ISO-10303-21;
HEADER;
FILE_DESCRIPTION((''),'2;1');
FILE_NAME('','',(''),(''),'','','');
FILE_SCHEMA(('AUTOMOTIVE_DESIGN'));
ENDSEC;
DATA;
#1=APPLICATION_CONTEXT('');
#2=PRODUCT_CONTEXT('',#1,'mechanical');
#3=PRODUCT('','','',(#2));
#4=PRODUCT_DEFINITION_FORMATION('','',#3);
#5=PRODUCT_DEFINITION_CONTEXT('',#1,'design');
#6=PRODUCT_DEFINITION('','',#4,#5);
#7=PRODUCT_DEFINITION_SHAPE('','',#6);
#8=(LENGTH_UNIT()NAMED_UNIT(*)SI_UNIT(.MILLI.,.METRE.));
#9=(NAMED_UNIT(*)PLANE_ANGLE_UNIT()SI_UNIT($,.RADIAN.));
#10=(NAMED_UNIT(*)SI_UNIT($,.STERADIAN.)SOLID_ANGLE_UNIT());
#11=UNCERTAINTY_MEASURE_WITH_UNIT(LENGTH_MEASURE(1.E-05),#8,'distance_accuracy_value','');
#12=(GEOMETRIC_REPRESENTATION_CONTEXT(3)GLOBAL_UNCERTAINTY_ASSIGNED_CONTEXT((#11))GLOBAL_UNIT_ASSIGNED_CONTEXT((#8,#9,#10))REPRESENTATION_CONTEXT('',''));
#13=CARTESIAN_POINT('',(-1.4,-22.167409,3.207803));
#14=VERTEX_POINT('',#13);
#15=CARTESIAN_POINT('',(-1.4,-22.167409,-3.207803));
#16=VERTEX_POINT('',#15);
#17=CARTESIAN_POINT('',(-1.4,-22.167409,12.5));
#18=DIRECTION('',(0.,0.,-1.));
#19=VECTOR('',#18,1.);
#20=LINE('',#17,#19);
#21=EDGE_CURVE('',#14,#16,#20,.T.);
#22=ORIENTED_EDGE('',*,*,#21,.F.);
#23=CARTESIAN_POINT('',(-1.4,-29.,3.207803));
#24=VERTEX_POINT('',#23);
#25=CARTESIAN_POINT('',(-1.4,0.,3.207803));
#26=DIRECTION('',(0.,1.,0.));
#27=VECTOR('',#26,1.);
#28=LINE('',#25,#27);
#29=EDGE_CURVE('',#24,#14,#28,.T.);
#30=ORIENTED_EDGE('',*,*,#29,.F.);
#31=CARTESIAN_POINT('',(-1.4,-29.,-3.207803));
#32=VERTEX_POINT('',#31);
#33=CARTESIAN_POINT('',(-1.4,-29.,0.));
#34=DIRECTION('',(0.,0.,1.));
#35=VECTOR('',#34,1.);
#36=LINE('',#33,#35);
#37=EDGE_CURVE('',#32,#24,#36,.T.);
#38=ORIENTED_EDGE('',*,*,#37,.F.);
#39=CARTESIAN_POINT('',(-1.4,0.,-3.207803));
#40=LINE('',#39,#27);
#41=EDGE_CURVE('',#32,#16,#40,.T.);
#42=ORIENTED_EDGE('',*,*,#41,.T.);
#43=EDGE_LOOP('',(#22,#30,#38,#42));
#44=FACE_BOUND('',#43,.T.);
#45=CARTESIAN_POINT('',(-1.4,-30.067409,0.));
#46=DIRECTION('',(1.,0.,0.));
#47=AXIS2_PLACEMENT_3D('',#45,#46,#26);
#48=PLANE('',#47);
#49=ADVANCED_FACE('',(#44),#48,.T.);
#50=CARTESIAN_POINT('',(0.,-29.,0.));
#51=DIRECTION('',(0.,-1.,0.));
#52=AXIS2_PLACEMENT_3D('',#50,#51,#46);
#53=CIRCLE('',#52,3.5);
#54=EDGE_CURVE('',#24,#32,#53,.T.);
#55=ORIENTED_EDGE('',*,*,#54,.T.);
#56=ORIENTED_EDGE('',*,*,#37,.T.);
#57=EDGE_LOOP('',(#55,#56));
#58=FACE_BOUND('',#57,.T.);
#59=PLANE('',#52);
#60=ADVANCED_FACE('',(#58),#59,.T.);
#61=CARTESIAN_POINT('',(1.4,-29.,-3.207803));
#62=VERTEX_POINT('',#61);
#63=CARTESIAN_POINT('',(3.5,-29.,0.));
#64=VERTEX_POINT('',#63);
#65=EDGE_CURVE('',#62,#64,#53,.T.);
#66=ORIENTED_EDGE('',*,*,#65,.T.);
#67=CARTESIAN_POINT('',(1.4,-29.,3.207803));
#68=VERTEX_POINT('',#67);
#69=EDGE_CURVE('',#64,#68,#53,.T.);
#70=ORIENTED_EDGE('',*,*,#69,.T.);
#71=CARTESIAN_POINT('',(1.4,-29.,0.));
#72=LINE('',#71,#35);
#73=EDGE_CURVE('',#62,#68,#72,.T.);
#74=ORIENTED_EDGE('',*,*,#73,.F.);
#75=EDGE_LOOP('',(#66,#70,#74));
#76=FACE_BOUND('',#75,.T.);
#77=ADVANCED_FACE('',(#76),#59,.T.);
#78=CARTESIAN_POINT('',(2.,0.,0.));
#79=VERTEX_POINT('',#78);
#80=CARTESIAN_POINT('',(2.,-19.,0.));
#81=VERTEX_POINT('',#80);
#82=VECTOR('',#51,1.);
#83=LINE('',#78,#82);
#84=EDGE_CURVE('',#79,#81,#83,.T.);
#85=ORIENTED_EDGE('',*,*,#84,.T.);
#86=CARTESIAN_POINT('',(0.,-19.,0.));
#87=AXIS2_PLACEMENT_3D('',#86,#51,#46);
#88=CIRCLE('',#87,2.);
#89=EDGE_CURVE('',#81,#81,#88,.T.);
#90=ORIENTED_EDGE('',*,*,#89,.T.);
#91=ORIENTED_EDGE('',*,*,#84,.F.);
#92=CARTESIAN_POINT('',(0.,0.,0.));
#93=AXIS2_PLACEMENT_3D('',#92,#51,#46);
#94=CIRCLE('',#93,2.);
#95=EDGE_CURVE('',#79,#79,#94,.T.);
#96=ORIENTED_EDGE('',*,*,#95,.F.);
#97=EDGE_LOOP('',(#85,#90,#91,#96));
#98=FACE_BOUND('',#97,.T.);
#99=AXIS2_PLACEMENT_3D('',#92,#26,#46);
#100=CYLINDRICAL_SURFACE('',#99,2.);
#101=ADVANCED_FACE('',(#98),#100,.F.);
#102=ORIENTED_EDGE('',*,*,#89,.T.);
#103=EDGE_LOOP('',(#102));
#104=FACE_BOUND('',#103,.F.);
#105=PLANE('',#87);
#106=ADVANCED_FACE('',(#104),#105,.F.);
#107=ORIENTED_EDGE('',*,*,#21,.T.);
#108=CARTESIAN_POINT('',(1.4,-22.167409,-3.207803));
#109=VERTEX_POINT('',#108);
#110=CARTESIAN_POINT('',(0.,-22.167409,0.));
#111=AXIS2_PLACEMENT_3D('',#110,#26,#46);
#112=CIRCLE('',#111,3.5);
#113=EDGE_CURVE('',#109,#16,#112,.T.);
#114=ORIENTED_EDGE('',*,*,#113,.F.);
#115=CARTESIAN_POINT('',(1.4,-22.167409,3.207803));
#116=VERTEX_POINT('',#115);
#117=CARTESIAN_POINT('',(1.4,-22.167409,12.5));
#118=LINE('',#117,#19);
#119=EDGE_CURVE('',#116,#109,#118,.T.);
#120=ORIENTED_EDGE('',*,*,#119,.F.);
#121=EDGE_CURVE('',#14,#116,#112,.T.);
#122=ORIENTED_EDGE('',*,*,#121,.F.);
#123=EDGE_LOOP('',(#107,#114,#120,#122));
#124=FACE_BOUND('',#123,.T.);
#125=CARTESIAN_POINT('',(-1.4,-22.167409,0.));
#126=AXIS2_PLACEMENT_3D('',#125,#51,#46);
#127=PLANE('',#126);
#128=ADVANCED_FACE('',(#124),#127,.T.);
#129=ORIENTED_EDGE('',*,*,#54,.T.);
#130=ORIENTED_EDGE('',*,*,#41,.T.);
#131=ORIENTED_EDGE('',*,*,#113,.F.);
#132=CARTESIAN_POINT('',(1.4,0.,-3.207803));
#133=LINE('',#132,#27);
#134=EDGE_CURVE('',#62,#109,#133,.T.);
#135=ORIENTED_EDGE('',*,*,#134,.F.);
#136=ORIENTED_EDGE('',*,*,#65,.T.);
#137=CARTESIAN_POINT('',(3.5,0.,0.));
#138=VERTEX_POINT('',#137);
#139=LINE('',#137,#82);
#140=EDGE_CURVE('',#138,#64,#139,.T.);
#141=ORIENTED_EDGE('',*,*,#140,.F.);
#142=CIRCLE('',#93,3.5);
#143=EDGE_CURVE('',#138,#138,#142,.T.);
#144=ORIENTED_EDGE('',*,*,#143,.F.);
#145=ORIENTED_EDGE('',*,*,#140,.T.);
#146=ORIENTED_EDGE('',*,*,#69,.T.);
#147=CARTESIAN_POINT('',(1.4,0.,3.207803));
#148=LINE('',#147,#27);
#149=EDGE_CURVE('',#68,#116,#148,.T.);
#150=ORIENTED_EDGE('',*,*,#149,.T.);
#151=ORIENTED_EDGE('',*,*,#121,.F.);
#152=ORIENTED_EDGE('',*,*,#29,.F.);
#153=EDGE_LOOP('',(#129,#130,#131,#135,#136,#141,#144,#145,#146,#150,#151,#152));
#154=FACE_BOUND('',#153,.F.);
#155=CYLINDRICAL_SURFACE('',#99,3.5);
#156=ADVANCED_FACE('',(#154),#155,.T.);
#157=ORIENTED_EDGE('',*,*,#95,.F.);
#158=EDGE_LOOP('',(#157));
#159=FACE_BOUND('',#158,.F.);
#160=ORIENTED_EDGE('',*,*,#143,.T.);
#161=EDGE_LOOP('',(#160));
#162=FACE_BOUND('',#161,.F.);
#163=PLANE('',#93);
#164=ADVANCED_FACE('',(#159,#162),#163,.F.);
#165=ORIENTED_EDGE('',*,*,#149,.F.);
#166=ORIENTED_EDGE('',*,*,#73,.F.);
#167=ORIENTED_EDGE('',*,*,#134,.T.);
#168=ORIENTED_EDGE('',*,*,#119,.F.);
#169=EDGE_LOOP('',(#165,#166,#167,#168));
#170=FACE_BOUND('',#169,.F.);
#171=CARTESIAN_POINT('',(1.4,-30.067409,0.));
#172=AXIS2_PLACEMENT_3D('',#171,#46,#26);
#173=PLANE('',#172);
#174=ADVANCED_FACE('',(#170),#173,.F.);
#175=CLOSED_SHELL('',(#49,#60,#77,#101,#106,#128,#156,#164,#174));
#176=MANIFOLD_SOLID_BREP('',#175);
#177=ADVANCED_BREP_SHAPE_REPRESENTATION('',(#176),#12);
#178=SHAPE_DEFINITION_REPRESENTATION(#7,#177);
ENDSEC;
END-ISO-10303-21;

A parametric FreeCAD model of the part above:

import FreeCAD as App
import Part
import Sketcher

V = App.Vector

doc = App.newDocument("Part")
body = doc.addObject("PartDesign::Body", "Body")

# Sketch on XZ plane
sketch1 = body.newObject("Sketcher::SketchObject", "Sketch")
sketch1.AttachmentSupport = (doc.getObject("XZ_Plane"), [""])
sketch1.MapMode = "FlatFace"
sketch1.addGeometry(Part.Circle(V(0, 0, 0), V(0, 0, 1), 3.5), False)
sketch1.addConstraint([
    Sketcher.Constraint("Coincident", 0, 3, -1, 1),
    Sketcher.Constraint("Diameter", 0, 7.0),
])
pad1 = body.newObject("PartDesign::Pad", "Pad")
pad1.Profile = sketch1
pad1.Length = 29

# Sketch on XZ plane
sketch2 = body.newObject("Sketcher::SketchObject", "Sketch001")
sketch2.AttachmentSupport = (doc.getObject("XZ_Plane"), [""])
sketch2.MapMode = "FlatFace"
sketch2.addGeometry(Part.Circle(V(0, 0, 0), V(0, 0, 1), 2), False)
sketch2.addConstraint([
    Sketcher.Constraint("Coincident", 0, 3, -1, 1),
    Sketcher.Constraint("Diameter", 0, 4.0),
])
pocket1 = body.newObject("PartDesign::Pocket", "Pocket")
pocket1.Profile = sketch2
pocket1.Length = 19
pocket1.Reversed = True

# Sketch on XY plane
sketch3 = body.newObject("Sketcher::SketchObject", "Sketch002")
sketch3.AttachmentSupport = (doc.getObject("XY_Plane"), [""])
sketch3.MapMode = "FlatFace"
sketch3.addGeometry([
    Part.LineSegment(V(-1.4, -22.167409, 0), V(-1.4, -30.067409, 0)),
    Part.LineSegment(V(-1.4, -30.067409, 0), V(1.4, -30.067409, 0)),
    Part.LineSegment(V(1.4, -30.067409, 0), V(1.4, -22.167409, 0)),
    Part.LineSegment(V(1.4, -22.167409, 0), V(-1.4, -22.167409, 0)),
], False)
sketch3.addConstraint([
    Sketcher.Constraint("Coincident", 0, 2, 1, 1),
    Sketcher.Constraint("Coincident", 1, 2, 2, 1),
    Sketcher.Constraint("Coincident", 2, 2, 3, 1),
    Sketcher.Constraint("Coincident", 3, 2, 0, 1),
    Sketcher.Constraint("Vertical", 0),
    Sketcher.Constraint("Horizontal", 1),
    Sketcher.Constraint("Vertical", 2),
    Sketcher.Constraint("Horizontal", 3),
    Sketcher.Constraint("DistanceX", 1, 1, 1, 2, 2.8),
    Sketcher.Constraint("DistanceY", 0, 2, 0, 1, 7.9),
    Sketcher.Constraint("DistanceX", 0, 2, -1, 1, 1.4),
    Sketcher.Constraint("DistanceY", 0, 2, -1, 1, 30.067409),
])
pocket2 = body.newObject("PartDesign::Pocket", "Pocket001")
pocket2.Profile = sketch3
pocket2.Length = 25
pocket2.Midplane = True

doc.recompute()
